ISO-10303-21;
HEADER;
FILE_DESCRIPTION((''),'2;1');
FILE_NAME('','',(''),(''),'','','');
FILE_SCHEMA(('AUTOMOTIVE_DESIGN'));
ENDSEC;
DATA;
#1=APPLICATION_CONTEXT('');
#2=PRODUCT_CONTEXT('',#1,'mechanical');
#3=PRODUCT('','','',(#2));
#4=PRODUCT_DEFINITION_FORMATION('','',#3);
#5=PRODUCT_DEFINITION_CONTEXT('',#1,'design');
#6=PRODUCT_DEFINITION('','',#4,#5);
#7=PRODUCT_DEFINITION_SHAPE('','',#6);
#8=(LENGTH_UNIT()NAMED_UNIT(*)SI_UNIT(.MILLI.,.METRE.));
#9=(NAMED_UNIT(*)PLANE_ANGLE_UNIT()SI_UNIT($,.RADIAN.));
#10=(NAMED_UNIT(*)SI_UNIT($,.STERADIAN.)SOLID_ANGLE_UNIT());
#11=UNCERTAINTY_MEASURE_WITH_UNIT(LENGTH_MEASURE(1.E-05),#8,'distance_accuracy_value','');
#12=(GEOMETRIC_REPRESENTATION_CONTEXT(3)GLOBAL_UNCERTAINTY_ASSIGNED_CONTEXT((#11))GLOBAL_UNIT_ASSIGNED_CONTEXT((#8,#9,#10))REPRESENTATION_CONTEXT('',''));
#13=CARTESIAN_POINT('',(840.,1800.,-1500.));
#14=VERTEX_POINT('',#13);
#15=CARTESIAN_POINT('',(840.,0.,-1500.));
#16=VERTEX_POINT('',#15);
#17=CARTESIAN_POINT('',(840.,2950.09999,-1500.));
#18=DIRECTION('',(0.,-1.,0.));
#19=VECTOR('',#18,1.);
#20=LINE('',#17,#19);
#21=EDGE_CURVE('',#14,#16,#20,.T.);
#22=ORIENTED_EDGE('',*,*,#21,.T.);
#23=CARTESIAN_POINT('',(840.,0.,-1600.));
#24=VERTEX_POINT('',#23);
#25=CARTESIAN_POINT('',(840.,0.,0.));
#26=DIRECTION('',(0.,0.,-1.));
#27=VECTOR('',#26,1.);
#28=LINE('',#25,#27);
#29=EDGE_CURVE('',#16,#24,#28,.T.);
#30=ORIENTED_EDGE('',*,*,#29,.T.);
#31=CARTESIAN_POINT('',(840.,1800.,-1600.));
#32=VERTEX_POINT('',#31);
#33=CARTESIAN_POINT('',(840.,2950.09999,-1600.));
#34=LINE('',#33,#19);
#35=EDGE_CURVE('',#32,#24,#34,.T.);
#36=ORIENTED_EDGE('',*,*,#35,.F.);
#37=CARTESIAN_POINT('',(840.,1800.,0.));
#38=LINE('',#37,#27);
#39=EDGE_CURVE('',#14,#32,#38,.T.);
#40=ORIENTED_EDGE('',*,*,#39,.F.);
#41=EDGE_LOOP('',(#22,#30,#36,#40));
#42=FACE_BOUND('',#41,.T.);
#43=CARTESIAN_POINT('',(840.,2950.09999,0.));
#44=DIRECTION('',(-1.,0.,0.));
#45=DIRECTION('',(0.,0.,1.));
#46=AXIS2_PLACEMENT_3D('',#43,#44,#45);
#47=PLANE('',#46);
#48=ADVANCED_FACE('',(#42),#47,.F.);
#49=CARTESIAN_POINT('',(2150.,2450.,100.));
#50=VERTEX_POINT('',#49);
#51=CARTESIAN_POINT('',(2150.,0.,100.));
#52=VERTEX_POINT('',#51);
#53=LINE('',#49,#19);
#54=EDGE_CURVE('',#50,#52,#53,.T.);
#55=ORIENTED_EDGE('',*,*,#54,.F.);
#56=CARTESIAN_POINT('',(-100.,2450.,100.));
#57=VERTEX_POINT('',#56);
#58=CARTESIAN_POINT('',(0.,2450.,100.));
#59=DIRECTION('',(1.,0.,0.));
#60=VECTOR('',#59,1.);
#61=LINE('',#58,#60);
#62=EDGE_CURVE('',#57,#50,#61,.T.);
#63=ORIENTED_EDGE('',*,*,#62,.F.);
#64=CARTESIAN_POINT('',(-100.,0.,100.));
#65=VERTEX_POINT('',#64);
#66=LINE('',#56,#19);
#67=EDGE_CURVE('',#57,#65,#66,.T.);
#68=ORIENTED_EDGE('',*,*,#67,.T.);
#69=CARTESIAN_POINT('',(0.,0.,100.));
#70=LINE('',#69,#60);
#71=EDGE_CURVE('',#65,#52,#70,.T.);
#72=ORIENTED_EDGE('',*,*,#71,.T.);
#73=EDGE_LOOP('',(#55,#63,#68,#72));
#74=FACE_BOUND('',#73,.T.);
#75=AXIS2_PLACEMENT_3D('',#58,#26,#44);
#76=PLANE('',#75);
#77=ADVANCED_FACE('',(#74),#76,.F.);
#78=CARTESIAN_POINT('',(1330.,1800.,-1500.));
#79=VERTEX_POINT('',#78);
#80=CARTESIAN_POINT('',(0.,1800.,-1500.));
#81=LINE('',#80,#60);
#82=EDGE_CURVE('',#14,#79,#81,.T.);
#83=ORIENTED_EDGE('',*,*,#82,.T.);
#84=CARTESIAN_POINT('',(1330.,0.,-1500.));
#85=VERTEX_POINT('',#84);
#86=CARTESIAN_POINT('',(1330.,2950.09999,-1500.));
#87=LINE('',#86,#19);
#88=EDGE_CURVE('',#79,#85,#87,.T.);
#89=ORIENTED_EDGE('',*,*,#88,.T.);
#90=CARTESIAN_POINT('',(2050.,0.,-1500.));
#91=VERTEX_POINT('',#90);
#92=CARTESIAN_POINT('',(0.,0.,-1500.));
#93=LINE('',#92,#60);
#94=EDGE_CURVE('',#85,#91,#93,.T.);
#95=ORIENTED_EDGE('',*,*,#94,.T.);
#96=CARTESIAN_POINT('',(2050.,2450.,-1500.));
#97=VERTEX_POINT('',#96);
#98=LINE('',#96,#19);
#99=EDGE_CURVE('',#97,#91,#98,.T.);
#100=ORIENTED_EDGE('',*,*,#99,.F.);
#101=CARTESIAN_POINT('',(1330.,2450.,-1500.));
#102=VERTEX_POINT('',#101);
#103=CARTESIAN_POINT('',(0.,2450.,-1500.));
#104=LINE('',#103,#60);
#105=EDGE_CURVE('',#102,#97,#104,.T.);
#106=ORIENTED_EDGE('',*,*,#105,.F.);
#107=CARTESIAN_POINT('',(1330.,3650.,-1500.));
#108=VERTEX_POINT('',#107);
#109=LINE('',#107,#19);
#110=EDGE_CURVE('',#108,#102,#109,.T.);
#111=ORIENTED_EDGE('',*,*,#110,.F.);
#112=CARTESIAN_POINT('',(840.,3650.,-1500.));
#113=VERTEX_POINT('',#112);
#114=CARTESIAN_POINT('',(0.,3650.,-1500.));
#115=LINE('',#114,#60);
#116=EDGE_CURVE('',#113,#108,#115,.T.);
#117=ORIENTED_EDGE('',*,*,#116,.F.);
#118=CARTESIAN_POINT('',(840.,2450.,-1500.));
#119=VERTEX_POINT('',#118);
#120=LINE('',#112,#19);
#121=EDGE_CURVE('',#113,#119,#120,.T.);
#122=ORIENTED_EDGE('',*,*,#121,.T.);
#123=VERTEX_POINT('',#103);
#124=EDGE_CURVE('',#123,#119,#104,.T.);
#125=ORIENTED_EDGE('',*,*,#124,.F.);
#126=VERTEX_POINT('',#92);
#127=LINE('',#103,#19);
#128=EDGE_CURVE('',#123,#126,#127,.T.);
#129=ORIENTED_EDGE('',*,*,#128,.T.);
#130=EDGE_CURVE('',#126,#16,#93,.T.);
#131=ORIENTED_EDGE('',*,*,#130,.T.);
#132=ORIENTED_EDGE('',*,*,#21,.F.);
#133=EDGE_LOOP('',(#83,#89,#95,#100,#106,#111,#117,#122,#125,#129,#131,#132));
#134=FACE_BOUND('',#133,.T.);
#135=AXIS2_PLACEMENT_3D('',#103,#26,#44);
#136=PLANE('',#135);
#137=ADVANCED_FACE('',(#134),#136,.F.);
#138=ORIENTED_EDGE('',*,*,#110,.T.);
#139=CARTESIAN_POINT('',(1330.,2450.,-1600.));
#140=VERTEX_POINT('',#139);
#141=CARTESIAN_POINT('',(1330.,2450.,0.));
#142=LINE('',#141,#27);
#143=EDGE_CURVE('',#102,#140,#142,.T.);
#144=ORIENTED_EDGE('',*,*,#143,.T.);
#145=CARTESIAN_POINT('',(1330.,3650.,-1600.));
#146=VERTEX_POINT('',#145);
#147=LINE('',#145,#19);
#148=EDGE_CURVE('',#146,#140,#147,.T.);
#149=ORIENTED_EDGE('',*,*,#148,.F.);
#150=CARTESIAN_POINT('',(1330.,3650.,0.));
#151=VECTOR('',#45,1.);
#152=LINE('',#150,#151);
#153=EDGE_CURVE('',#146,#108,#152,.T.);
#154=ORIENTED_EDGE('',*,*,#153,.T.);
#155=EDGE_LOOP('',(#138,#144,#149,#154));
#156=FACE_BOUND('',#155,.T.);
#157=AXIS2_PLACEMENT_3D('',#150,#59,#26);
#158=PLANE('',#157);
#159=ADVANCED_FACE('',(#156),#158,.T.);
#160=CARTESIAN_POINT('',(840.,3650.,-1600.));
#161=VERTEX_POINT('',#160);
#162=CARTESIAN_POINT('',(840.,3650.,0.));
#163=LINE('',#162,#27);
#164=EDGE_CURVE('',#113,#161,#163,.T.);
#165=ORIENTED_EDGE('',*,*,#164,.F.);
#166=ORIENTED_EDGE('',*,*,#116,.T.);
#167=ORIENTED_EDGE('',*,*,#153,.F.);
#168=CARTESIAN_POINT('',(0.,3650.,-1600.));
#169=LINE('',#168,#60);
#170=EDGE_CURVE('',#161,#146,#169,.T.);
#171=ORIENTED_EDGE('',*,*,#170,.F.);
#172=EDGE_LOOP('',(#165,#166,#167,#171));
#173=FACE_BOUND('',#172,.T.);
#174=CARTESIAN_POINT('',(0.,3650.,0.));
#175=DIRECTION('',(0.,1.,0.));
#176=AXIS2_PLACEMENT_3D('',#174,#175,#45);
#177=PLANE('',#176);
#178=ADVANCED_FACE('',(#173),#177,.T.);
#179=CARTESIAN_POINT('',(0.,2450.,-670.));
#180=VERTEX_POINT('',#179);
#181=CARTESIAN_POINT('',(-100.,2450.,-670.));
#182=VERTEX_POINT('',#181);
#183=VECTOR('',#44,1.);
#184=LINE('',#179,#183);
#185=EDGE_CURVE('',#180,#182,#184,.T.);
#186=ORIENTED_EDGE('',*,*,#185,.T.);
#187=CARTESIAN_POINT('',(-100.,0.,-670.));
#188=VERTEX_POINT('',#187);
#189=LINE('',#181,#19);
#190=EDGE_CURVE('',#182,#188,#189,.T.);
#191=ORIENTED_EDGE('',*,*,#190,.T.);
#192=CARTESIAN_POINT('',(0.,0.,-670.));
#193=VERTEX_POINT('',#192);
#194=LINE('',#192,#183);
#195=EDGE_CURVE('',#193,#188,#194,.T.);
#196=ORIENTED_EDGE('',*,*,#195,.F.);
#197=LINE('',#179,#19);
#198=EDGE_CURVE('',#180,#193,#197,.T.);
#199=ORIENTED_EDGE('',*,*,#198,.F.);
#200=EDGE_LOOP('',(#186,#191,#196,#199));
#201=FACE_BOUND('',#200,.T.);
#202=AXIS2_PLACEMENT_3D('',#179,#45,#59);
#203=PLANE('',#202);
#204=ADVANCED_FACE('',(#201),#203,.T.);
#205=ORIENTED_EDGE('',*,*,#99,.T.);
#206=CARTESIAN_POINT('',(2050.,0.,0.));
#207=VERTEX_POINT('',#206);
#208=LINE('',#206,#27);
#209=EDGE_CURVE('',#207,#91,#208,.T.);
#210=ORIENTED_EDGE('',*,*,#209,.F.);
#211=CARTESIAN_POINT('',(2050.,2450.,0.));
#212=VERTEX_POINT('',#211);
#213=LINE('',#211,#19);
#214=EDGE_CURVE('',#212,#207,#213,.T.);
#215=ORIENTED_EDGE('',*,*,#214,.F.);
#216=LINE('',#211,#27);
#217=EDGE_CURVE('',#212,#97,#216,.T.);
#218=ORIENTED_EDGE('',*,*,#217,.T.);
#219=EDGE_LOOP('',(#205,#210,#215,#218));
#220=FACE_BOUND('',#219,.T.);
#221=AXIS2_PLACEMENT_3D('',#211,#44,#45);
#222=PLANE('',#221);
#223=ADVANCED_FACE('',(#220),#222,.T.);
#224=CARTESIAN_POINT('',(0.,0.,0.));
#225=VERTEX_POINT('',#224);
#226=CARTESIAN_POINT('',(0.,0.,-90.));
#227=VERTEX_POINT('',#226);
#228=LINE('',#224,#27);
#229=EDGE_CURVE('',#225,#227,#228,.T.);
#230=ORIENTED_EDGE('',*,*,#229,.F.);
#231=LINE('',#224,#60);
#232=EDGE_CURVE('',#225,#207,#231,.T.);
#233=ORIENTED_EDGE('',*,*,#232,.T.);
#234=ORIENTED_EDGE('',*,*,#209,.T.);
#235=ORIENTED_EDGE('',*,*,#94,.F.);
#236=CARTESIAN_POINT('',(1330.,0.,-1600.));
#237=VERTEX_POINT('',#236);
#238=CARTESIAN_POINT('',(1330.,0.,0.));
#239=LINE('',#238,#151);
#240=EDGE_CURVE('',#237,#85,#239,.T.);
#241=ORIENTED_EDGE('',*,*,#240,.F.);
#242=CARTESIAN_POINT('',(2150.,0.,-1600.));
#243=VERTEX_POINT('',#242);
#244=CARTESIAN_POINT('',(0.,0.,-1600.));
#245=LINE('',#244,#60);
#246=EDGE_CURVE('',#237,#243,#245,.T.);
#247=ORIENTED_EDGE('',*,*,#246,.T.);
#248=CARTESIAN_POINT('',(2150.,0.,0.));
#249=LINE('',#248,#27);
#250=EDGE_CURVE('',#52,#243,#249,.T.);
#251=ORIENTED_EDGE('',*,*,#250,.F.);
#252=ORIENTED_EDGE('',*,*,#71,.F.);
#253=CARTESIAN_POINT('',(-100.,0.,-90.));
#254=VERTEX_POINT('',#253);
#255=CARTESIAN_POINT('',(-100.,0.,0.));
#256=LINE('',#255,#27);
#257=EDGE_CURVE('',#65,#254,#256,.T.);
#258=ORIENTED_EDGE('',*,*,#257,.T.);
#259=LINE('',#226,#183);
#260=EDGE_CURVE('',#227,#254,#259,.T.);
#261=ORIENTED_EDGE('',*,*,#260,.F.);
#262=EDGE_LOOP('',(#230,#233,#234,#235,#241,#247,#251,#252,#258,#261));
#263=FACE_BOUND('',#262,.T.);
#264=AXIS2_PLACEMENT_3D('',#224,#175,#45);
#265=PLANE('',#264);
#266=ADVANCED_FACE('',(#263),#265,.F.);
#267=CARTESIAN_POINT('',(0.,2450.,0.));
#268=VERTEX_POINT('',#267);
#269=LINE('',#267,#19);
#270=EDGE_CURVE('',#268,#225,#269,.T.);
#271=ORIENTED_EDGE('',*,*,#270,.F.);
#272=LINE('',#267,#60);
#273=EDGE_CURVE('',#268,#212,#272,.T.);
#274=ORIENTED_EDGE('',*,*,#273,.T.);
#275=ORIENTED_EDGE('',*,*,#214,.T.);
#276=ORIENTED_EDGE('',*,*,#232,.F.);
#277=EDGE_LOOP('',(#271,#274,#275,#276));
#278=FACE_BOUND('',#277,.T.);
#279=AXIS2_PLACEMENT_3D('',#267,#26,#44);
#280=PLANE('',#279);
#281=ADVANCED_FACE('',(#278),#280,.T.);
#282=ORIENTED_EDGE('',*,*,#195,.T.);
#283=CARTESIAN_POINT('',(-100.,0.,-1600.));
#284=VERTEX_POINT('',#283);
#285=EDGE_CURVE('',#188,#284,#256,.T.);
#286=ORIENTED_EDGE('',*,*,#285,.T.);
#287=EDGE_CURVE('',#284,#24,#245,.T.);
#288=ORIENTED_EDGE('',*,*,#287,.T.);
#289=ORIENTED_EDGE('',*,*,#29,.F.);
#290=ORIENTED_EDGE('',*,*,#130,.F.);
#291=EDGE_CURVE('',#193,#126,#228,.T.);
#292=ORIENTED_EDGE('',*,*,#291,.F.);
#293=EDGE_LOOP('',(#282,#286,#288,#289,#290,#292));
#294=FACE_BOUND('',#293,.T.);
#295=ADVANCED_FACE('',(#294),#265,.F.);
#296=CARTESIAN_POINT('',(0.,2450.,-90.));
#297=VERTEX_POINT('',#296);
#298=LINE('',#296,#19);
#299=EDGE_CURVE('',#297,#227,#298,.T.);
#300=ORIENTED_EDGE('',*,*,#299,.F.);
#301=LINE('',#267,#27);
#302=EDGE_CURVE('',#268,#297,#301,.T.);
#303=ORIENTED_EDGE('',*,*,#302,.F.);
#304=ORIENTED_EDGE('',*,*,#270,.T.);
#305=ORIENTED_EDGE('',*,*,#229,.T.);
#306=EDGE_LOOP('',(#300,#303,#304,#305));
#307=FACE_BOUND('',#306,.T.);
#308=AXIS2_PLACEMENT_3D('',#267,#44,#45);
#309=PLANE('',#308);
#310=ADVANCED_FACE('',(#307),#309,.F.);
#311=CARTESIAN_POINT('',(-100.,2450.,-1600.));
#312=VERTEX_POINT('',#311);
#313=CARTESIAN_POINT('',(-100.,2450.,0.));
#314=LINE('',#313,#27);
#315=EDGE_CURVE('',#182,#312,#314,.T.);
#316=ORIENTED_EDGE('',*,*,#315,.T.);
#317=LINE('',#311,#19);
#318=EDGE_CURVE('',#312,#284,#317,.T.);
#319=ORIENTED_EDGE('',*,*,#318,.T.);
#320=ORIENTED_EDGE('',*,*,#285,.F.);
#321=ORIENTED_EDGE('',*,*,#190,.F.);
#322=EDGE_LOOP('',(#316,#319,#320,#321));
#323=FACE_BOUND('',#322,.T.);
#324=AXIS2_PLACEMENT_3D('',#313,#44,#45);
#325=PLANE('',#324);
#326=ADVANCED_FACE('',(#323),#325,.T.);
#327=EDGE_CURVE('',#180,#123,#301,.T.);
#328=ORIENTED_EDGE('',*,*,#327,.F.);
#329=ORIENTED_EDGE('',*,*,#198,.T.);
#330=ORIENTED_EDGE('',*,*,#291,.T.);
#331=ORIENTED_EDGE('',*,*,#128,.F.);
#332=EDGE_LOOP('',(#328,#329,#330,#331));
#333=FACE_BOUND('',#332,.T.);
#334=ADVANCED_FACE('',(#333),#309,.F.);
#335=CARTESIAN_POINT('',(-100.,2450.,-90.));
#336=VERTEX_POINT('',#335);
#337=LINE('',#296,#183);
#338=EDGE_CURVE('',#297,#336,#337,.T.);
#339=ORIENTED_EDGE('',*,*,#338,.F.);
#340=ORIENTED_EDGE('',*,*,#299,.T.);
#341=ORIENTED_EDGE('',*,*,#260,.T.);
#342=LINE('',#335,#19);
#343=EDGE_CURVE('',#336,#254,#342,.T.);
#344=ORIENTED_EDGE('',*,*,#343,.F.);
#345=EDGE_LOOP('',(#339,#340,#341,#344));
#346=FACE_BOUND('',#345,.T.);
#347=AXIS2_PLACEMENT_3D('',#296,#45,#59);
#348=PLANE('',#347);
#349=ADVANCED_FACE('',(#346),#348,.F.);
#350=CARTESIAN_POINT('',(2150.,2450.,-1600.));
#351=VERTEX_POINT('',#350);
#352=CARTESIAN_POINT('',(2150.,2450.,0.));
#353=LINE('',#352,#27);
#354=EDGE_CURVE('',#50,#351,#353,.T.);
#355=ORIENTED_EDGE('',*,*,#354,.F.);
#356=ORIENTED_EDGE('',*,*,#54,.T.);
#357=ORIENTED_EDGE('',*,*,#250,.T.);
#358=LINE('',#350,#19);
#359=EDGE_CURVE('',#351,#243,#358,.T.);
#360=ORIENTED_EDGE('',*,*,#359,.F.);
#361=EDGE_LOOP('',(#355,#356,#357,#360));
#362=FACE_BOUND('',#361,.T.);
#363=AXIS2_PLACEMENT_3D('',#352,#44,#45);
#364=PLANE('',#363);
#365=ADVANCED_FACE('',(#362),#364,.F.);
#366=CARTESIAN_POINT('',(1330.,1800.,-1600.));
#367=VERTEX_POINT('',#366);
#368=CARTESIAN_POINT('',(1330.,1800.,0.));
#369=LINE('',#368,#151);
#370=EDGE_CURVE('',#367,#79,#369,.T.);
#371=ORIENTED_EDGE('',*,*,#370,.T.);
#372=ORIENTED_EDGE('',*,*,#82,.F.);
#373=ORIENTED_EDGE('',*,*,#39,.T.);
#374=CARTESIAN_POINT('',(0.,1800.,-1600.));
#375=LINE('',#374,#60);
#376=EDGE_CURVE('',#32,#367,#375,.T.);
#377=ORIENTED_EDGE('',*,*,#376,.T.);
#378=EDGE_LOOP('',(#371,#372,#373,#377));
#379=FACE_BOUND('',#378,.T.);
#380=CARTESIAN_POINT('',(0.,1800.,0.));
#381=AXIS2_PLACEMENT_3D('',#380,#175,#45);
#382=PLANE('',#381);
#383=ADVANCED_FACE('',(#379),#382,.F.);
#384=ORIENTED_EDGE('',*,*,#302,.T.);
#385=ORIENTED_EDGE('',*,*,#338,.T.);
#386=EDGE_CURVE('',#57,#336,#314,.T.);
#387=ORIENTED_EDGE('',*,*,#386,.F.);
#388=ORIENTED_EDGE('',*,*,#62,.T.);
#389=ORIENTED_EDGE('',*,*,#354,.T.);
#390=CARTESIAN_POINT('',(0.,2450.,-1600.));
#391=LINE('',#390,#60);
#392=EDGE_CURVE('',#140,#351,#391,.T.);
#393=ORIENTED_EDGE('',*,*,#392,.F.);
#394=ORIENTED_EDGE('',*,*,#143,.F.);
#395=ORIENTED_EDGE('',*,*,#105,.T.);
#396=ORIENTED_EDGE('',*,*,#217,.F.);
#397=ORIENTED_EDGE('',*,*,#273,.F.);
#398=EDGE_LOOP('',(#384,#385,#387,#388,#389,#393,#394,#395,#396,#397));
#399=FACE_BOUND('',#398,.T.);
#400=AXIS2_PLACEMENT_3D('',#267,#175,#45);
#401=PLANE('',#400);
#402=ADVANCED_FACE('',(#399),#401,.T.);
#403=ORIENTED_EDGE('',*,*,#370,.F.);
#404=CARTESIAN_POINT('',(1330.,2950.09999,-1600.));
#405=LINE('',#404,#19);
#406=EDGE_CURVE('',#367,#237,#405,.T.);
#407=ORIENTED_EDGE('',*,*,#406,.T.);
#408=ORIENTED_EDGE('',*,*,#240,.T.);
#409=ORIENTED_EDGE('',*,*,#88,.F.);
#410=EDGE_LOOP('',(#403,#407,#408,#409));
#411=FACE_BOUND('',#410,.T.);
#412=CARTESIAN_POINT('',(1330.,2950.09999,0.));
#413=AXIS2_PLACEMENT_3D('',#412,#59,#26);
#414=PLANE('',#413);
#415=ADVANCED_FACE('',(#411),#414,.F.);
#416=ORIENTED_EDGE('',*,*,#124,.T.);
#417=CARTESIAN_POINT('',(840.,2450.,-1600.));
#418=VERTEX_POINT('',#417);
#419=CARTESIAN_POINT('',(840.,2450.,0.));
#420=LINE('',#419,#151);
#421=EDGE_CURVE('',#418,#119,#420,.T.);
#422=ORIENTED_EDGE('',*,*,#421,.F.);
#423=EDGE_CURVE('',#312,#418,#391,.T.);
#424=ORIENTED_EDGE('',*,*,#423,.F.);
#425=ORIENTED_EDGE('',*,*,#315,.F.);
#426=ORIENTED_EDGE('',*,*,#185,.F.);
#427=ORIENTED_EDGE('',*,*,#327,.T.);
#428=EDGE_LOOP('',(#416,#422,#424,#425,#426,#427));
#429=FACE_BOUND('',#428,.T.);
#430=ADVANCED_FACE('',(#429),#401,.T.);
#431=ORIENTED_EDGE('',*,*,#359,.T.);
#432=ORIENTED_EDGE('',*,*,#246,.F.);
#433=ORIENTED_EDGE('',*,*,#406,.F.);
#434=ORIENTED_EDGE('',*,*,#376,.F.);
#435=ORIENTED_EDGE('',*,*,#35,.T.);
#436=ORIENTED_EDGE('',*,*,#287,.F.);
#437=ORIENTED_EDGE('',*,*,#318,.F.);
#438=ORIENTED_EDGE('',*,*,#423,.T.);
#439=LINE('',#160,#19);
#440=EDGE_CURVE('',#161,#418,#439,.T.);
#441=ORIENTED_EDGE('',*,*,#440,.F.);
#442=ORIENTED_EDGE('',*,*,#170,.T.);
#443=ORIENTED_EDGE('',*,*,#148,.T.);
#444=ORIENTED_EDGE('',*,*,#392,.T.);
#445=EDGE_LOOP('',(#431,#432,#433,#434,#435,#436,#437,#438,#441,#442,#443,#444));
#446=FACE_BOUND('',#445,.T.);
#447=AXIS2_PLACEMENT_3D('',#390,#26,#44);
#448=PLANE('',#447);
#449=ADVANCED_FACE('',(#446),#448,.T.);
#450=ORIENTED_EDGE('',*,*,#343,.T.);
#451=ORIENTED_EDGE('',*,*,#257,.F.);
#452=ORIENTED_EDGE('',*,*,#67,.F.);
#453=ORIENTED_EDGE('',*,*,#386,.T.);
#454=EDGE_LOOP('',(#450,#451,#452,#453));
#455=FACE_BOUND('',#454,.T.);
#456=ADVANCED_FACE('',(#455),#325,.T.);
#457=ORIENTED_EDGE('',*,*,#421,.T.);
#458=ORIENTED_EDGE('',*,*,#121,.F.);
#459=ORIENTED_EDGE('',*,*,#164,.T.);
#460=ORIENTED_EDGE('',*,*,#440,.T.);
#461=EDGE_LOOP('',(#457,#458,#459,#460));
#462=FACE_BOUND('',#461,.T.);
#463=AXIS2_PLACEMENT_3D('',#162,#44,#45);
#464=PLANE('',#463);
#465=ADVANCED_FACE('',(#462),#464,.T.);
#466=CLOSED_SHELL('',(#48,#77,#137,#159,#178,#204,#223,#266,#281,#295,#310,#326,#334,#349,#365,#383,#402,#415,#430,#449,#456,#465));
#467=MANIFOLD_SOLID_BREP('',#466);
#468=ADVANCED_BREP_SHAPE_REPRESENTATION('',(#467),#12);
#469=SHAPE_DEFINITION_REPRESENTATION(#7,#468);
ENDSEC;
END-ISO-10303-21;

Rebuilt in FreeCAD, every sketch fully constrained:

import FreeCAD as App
import Part
import Sketcher


def add_polygon(sketch, points):
    """Adds a closed chain of lines whose ends are joined by coincident constraints."""
    first, n = sketch.GeometryCount, len(points)
    for a, b in zip(points, points[1:] + points[:1]):
        sketch.addGeometry(Part.LineSegment(App.Vector(*a, 0), App.Vector(*b, 0)), False)
    for i in range(n):
        sketch.addConstraint(Sketcher.Constraint("Coincident", first + i, 2, first + (i + 1) % n, 1))

doc = App.newDocument("Part")
body = doc.addObject("PartDesign::Body", "Body")

# Sketch on XZ plane
sketch1 = body.newObject("Sketcher::SketchObject", "Sketch")
sketch1.AttachmentSupport = (doc.getObject("XZ_Plane"), [""])
sketch1.MapMode = "FlatFace"
add_polygon(sketch1, [(-100, -1600), (-100, -670), (0, -670), (0, -1500), (2050, -1500), (2050, 0), (0, 0), (0, -90), (-100, -90), (-100, 100), (2150, 100), (2150, -1600)])  # lines 0-11
sketch1.addConstraint([
    Sketcher.Constraint("Vertical", 0),
    Sketcher.Constraint("Horizontal", 1),
    Sketcher.Constraint("Vertical", 2),
    Sketcher.Constraint("Horizontal", 3),
    Sketcher.Constraint("Vertical", 4),
    Sketcher.Constraint("Horizontal", 5),
    Sketcher.Constraint("Vertical", 6),
    Sketcher.Constraint("Horizontal", 7),
    Sketcher.Constraint("Vertical", 8),
    Sketcher.Constraint("Horizontal", 9),
    Sketcher.Constraint("Vertical", 10),
    Sketcher.Constraint("Horizontal", 11),
    Sketcher.Constraint("Coincident", 5, 2, -1, 1),
    Sketcher.Constraint("PointOnObject", 1, 2, -2),
    Sketcher.Constraint("Vertical", 0, 2, 7, 2),
    Sketcher.Constraint("DistanceX", 1, 1, 1, 2, 100.0),
    Sketcher.Constraint("DistanceX", 3, 1, 3, 2, 2050.0),
    Sketcher.Constraint("DistanceX", 9, 1, 9, 2, 2250.0),
    Sketcher.Constraint("DistanceY", 0, 1, 0, 2, 930.0),
    Sketcher.Constraint("DistanceY", 2, 2, 2, 1, 830.0),
    Sketcher.Constraint("DistanceY", 4, 1, 4, 2, 1500.0),
    Sketcher.Constraint("DistanceY", 6, 2, 6, 1, 90.0),
    Sketcher.Constraint("DistanceY", 8, 1, 8, 2, 190.0),
])
pad1 = body.newObject("PartDesign::Pad", "Pad")
pad1.Profile = sketch1
pad1.Length = 2450
pad1.Reversed = True

# Sketch on XZ plane
sketch2 = body.newObject("Sketcher::SketchObject", "Sketch001")
sketch2.AttachmentSupport = (doc.getObject("XZ_Plane"), [""])
sketch2.MapMode = "FlatFace"
sketch2.AttachmentOffset = App.Placement(App.Vector(0, 0, -1200), App.Rotation())
add_polygon(sketch2, [(840, -1600), (840, -1500), (1330, -1500), (1330, -1600)])  # lines 0-3
sketch2.addConstraint([
    Sketcher.Constraint("Vertical", 0),
    Sketcher.Constraint("Horizontal", 1),
    Sketcher.Constraint("Vertical", 2),
    Sketcher.Constraint("Horizontal", 3),
    Sketcher.Constraint("DistanceX", 1, 1, 1, 2, 490.0),
    Sketcher.Constraint("DistanceY", 0, 1, 0, 2, 100.0),
    Sketcher.Constraint("DistanceX", -1, 1, 0, 2, 840.0),
    Sketcher.Constraint("DistanceY", 0, 2, -1, 1, 1500.0),
])
pad2 = body.newObject("PartDesign::Pad", "Pad001")
pad2.Profile = sketch2
pad2.Length = 2450
pad2.Reversed = True

# Sketch on XZ plane
sketch3 = body.newObject("Sketcher::SketchObject", "Sketch002")
sketch3.AttachmentSupport = (doc.getObject("XZ_Plane"), [""])
sketch3.MapMode = "FlatFace"
add_polygon(sketch3, [(840, -1600), (840, -1500), (1330, -1500), (1330, -1600)])  # lines 0-3
sketch3.addConstraint([
    Sketcher.Constraint("Vertical", 0),
    Sketcher.Constraint("Horizontal", 1),
    Sketcher.Constraint("Vertical", 2),
    Sketcher.Constraint("Horizontal", 3),
    Sketcher.Constraint("DistanceX", 1, 1, 1, 2, 490.0),
    Sketcher.Constraint("DistanceY", 0, 1, 0, 2, 100.0),
    Sketcher.Constraint("DistanceX", -1, 1, 0, 2, 840.0),
    Sketcher.Constraint("DistanceY", 0, 2, -1, 1, 1500.0),
])
pocket1 = body.newObject("PartDesign::Pocket", "Pocket")
pocket1.Profile = sketch3
pocket1.Length = 1800

doc.recompute()
